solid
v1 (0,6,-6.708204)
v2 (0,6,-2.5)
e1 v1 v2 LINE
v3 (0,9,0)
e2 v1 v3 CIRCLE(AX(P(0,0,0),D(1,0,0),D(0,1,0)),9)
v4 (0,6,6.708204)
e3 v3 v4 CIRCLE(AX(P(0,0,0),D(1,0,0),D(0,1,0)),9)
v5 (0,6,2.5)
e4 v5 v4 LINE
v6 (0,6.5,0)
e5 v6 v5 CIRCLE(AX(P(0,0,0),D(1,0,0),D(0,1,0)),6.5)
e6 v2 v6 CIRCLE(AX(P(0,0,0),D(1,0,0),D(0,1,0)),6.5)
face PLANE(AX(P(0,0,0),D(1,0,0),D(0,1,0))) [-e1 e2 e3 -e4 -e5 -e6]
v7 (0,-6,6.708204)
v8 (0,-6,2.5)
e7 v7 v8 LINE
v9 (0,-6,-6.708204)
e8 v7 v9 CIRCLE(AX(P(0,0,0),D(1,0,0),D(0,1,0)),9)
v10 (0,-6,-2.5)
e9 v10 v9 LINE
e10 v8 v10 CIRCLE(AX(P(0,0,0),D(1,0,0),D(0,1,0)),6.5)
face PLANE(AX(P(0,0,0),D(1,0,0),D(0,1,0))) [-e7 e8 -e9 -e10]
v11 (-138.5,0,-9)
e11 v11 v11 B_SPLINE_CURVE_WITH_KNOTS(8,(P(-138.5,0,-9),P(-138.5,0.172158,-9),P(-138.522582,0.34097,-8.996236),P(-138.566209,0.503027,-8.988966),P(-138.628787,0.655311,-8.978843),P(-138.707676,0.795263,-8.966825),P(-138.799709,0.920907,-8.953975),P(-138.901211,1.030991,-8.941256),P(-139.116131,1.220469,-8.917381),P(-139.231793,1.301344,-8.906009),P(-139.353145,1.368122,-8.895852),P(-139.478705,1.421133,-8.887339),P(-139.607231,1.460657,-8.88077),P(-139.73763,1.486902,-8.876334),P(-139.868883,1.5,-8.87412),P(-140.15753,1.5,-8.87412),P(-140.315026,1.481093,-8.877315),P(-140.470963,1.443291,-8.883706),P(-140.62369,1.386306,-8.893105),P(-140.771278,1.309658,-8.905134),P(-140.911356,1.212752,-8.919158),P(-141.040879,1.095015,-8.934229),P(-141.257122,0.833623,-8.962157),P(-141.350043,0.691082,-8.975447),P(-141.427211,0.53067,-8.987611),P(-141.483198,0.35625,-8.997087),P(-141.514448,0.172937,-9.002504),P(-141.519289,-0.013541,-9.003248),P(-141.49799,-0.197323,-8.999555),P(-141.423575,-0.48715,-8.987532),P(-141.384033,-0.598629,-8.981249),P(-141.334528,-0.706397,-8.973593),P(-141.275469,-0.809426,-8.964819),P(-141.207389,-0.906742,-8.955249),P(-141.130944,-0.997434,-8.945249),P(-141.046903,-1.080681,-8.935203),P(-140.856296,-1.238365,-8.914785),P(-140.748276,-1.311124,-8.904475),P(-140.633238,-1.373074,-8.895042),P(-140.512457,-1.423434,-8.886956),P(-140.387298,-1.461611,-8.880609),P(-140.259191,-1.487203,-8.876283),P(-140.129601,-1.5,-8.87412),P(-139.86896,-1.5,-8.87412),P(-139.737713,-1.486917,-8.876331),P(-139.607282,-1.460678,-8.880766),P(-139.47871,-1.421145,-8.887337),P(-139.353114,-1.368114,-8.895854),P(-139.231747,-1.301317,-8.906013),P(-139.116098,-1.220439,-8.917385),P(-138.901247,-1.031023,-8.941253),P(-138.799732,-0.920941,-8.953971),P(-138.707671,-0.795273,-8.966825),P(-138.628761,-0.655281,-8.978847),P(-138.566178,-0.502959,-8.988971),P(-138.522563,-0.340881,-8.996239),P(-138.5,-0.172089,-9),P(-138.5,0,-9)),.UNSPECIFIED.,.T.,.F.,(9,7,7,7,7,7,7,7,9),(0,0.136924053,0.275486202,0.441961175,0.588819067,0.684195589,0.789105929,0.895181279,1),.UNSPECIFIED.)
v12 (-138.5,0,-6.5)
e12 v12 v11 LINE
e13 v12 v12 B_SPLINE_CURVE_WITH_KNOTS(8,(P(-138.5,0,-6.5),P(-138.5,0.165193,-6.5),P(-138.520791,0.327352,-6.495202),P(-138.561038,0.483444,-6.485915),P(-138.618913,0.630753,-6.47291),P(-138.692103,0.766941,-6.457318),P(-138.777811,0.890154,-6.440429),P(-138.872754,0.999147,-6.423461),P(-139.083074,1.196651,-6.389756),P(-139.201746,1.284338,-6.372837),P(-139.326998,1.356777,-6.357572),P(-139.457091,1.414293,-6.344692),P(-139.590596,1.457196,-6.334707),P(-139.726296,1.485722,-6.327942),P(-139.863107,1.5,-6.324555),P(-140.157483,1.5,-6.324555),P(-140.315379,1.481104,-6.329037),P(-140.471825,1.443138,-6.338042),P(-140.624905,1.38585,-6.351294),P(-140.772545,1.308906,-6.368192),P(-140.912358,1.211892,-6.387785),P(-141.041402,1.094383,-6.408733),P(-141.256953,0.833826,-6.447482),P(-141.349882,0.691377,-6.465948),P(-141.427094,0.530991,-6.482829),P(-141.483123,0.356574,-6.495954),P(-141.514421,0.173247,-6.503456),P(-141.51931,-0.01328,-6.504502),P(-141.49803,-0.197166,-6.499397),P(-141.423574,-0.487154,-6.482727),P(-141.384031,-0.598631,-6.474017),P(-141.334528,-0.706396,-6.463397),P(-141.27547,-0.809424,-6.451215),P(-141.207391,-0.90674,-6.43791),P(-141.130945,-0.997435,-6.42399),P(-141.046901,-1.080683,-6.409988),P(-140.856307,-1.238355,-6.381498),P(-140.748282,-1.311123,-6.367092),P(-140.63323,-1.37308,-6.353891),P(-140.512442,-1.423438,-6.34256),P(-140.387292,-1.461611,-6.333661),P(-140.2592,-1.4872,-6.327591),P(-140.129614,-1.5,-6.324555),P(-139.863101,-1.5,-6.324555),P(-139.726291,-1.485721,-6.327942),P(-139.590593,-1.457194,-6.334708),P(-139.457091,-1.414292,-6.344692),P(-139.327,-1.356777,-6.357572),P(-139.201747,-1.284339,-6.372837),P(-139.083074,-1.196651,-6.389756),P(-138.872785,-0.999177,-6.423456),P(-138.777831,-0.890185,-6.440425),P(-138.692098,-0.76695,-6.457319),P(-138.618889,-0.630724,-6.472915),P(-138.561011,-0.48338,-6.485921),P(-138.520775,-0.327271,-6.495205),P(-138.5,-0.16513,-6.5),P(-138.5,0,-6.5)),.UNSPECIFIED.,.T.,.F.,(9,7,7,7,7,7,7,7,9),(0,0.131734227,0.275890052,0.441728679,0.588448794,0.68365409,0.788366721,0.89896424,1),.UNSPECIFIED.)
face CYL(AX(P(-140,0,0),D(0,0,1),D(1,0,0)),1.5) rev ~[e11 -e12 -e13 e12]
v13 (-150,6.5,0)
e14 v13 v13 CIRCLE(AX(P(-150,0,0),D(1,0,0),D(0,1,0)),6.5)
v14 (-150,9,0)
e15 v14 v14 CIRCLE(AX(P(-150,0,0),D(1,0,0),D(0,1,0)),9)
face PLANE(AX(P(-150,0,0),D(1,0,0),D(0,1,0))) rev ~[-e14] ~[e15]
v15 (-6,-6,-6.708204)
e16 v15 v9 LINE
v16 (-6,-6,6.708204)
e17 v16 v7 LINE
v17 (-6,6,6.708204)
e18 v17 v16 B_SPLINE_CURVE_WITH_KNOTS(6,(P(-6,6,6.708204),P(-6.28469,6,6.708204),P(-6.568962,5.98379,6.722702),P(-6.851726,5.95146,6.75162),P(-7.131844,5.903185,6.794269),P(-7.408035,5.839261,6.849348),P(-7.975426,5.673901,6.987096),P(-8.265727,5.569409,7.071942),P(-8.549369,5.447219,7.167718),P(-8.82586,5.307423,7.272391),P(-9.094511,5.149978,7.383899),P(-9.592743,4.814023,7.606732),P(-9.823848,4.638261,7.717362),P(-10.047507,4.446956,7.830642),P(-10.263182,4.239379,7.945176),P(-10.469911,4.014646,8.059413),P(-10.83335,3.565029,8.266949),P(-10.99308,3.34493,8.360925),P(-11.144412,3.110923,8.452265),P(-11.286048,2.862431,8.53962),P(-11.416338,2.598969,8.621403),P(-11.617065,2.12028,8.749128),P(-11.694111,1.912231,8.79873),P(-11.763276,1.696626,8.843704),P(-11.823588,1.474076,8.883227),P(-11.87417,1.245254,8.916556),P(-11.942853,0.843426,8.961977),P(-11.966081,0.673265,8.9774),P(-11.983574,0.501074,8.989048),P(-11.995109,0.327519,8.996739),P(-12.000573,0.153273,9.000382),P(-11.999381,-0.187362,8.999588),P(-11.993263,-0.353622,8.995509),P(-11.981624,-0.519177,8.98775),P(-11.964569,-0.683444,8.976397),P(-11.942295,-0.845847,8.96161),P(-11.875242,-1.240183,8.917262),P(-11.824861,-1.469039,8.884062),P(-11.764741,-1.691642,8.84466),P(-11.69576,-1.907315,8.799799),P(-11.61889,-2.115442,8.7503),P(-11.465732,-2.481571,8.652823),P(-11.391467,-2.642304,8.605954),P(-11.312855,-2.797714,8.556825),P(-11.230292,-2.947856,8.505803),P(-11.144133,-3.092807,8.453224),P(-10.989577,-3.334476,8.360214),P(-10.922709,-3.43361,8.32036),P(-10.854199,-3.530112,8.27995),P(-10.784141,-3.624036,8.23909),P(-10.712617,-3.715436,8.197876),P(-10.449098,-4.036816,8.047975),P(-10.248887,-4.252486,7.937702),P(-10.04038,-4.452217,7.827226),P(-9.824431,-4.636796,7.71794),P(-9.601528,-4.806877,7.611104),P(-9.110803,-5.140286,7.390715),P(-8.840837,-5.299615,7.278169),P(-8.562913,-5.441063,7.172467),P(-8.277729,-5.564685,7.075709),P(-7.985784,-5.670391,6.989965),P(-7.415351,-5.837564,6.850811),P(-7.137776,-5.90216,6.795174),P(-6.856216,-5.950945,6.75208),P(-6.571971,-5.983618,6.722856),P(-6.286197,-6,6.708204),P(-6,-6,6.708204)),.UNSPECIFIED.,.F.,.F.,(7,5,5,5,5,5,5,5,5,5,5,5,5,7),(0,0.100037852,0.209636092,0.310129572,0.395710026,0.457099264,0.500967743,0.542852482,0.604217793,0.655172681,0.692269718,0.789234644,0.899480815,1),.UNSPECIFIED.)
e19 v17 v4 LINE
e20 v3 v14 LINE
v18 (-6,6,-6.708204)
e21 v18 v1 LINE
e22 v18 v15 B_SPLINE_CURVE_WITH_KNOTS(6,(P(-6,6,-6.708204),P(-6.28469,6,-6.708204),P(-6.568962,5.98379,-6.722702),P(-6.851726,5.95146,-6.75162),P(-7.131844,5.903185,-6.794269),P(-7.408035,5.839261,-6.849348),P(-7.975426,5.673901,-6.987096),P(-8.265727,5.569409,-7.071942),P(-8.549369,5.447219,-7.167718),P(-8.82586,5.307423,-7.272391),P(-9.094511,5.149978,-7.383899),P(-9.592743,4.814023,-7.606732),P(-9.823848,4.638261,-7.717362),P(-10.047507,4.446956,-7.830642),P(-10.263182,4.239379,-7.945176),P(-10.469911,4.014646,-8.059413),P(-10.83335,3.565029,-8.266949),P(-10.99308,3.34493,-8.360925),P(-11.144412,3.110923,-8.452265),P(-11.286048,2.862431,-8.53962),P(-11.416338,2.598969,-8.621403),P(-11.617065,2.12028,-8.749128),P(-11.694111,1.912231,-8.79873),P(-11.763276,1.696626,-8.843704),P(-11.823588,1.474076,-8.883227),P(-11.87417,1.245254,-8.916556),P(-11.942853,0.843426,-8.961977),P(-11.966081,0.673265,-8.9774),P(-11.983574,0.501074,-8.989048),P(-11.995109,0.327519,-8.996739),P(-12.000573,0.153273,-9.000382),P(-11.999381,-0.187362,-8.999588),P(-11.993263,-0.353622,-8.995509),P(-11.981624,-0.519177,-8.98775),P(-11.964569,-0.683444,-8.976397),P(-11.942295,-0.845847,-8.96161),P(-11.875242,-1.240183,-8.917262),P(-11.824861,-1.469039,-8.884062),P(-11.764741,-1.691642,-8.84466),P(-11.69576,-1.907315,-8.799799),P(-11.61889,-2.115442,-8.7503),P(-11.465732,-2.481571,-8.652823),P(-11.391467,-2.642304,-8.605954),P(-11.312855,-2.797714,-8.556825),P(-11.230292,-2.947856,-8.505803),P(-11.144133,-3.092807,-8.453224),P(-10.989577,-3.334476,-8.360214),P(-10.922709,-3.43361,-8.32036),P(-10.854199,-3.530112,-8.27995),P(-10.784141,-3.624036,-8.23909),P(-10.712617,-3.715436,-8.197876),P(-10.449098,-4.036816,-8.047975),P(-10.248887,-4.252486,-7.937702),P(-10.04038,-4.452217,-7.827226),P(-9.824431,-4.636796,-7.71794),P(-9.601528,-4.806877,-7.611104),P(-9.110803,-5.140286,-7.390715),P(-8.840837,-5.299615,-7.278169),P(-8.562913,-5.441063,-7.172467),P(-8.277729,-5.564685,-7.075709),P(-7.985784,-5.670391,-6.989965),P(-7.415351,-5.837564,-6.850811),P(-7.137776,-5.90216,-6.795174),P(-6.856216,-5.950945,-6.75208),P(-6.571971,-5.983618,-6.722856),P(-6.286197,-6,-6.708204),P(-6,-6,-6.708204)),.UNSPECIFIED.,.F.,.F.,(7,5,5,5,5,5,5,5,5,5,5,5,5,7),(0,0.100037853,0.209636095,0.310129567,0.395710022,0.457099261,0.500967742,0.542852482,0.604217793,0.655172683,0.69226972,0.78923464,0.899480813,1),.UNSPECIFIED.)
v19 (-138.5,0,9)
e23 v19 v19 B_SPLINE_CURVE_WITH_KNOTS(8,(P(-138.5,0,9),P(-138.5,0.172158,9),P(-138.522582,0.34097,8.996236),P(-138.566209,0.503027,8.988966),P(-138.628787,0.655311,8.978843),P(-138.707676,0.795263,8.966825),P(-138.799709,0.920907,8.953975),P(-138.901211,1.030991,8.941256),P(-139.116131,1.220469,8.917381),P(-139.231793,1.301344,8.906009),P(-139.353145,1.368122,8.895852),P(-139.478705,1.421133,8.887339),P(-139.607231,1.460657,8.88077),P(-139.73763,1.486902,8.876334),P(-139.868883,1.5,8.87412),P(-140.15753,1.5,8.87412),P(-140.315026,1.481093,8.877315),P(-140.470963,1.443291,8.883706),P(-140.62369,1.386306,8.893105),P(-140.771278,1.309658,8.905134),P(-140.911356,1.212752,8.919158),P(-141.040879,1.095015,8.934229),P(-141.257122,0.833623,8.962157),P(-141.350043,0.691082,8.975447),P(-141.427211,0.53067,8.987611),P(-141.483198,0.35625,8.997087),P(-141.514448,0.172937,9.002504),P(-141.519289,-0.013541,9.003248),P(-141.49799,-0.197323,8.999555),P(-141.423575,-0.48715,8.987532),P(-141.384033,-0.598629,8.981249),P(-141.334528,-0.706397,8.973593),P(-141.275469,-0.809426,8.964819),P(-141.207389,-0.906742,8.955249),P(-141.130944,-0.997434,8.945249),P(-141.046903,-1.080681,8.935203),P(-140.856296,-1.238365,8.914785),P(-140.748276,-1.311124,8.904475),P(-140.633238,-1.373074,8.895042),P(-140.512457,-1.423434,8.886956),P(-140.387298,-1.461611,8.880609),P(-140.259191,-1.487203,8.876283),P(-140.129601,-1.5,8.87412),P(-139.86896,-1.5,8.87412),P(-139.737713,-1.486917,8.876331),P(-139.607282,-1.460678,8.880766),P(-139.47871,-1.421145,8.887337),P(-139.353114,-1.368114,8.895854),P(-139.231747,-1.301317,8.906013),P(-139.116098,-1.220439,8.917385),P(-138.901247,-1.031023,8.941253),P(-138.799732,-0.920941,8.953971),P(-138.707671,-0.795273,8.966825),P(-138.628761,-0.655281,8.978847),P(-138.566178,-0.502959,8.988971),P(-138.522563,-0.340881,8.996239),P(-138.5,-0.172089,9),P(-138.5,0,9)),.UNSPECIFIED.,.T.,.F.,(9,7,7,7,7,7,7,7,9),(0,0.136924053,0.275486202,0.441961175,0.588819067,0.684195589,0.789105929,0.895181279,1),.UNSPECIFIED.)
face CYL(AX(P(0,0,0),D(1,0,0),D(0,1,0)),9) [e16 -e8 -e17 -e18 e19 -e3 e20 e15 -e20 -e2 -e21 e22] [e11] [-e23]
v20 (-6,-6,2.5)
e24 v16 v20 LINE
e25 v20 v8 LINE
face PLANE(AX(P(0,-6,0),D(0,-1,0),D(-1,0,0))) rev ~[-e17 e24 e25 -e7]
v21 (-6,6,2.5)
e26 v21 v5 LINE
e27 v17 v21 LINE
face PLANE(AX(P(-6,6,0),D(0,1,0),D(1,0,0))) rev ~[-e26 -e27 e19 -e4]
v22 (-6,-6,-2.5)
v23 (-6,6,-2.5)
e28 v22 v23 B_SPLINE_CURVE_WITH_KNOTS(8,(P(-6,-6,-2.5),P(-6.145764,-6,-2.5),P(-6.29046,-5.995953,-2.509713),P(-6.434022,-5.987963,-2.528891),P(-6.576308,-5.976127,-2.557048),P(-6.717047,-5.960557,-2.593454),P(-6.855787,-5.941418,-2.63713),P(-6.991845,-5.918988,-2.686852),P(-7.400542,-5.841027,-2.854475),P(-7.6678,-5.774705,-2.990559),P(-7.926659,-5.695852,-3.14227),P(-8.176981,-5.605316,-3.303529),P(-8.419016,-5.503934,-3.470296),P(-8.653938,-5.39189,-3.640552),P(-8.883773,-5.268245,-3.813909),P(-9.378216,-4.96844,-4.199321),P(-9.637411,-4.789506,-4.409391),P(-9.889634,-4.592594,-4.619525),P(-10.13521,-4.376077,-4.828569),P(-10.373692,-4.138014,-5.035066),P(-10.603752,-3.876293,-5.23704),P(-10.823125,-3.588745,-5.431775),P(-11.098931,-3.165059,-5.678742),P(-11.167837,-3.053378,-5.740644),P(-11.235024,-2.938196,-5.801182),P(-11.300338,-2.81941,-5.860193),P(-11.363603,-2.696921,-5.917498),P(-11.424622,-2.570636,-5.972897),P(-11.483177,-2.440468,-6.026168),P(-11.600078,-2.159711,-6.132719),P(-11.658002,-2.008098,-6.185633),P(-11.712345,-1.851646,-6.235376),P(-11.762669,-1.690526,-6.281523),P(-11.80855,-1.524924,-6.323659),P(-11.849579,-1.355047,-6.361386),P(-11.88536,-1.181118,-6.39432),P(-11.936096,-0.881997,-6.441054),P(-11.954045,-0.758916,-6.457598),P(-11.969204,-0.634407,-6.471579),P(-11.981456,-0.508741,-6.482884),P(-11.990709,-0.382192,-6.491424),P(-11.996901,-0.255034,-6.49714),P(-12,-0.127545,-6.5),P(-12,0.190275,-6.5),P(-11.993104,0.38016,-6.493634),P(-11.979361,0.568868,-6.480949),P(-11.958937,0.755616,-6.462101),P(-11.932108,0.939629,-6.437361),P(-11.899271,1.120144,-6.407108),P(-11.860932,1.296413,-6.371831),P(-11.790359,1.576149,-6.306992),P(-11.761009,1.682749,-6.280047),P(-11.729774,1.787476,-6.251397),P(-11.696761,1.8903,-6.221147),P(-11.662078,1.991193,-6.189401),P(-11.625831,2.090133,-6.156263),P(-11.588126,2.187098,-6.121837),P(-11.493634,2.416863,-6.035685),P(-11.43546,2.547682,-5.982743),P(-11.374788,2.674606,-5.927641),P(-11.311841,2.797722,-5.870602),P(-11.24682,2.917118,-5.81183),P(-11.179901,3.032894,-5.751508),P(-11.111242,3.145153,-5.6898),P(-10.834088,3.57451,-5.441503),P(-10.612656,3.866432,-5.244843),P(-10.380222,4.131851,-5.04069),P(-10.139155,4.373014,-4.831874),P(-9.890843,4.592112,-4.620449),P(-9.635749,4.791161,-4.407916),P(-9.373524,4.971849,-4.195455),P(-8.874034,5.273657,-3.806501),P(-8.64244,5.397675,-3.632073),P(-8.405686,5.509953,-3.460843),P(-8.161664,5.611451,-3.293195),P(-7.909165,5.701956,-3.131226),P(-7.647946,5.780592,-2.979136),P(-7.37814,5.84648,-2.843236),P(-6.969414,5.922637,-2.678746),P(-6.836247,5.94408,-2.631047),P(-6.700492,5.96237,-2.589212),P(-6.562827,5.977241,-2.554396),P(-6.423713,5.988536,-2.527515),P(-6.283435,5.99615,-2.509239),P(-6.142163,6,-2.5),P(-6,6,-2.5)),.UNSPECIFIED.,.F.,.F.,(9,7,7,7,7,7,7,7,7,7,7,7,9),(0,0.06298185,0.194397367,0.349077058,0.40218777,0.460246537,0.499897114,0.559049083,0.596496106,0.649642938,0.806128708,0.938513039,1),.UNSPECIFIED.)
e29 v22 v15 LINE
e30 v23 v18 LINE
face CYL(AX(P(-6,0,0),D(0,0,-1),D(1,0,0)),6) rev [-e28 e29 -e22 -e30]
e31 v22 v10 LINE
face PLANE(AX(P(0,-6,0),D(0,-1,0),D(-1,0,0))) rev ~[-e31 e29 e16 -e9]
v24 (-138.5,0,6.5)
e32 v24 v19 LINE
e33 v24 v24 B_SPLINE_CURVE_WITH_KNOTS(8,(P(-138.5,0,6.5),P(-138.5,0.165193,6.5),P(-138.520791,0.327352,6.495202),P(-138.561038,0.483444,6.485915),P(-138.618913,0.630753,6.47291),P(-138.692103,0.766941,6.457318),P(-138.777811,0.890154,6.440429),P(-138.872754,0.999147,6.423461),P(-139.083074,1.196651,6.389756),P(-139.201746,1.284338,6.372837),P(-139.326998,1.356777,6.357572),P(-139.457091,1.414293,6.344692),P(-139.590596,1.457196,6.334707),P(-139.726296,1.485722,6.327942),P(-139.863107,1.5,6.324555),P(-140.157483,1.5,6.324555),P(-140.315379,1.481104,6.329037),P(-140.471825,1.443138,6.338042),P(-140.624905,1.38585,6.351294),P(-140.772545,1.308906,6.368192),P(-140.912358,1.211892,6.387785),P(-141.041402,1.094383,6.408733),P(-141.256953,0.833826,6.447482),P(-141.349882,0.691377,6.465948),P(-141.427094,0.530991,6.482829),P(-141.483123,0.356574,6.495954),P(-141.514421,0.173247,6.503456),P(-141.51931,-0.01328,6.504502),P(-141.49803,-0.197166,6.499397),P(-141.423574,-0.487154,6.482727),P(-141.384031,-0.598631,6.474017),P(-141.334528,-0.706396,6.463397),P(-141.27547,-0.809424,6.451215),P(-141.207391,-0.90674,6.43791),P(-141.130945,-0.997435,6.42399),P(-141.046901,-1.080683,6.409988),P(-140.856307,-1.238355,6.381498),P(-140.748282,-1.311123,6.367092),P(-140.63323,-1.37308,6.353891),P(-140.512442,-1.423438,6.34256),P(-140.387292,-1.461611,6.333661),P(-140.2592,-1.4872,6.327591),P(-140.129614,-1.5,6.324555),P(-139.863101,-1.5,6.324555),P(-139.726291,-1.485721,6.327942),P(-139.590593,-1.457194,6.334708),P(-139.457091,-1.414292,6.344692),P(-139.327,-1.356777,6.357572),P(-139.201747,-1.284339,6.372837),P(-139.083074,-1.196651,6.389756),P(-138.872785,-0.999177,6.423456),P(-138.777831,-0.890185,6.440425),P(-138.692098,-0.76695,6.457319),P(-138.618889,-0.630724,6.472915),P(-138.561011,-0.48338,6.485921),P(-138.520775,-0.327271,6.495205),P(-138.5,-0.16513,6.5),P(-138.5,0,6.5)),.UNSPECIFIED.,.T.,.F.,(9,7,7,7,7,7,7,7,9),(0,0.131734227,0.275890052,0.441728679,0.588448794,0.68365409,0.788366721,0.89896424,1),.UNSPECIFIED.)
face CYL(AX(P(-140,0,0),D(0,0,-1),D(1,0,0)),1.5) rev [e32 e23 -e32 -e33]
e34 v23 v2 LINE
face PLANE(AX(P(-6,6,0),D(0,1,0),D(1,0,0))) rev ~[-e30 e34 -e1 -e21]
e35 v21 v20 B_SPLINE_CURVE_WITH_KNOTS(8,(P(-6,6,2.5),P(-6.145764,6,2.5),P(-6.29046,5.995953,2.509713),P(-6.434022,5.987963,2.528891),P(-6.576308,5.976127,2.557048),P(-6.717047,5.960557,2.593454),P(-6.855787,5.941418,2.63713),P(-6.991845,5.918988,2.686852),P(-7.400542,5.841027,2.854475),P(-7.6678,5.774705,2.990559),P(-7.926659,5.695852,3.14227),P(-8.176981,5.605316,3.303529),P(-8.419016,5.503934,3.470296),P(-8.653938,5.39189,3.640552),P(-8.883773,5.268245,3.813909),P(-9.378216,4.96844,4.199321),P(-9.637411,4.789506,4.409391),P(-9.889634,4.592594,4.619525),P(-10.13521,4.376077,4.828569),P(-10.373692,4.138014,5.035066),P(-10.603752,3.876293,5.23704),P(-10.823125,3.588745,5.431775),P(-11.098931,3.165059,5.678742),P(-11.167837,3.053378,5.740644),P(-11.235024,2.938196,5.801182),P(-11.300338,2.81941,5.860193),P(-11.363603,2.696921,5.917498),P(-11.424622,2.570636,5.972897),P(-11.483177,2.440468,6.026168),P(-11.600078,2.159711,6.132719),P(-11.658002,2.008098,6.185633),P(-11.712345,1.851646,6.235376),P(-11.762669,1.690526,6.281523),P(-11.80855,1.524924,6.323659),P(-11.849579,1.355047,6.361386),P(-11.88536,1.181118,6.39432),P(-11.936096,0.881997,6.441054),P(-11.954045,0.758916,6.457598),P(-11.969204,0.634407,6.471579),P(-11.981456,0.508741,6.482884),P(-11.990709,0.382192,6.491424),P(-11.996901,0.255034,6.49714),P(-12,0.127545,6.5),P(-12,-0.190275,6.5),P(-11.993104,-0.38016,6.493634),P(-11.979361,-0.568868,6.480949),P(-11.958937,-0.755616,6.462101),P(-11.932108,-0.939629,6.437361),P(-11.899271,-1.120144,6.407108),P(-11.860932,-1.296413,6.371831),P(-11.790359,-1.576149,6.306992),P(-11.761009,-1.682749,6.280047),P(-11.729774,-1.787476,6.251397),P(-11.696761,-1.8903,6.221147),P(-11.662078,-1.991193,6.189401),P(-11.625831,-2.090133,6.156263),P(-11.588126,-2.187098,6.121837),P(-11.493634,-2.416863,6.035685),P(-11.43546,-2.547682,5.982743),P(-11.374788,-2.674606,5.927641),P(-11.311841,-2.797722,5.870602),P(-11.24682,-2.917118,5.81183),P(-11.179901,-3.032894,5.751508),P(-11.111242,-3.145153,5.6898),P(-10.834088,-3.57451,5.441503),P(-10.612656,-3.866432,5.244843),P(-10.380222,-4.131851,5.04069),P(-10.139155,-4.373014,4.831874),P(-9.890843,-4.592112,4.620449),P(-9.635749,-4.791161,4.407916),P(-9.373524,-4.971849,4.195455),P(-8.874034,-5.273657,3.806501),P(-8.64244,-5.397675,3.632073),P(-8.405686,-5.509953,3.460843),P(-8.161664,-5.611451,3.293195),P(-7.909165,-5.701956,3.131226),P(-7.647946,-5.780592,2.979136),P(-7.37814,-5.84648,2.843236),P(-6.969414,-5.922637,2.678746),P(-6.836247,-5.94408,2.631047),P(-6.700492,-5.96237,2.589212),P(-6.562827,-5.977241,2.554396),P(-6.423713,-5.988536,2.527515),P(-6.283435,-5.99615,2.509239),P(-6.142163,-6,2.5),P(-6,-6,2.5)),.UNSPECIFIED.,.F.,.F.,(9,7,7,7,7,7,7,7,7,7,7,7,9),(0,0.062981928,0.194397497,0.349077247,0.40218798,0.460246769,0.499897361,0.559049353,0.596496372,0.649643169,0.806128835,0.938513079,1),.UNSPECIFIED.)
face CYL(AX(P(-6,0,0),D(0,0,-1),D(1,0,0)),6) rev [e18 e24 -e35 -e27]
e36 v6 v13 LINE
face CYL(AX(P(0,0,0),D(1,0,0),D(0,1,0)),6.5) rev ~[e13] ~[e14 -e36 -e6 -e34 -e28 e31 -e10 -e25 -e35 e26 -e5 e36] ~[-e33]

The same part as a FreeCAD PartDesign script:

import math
import FreeCAD as App
import Part
import Sketcher
from FreeCAD import Vector


def add_polygon(sketch, points):
    """Adds a closed chain of lines whose ends are joined by coincident constraints."""
    first, n = sketch.GeometryCount, len(points)
    for a, b in zip(points, points[1:] + points[:1]):
        sketch.addGeometry(Part.LineSegment(App.Vector(*a, 0), App.Vector(*b, 0)), False)
    for i in range(n):
        sketch.addConstraint(Sketcher.Constraint("Coincident", first + i, 2, first + (i + 1) % n, 1))

doc = App.newDocument("Part")
body = doc.addObject("PartDesign::Body", "Body")

# Sketch on YZ plane
sketch1 = body.newObject("Sketcher::SketchObject", "Sketch")
sketch1.AttachmentSupport = (doc.getObject("YZ_Plane"), [""])
sketch1.MapMode = "FlatFace"
sketch1.addGeometry([
    Part.Circle(Vector(0, 0, 0), Vector(0, 0, 1), 9),
    Part.Circle(Vector(0, 0, 0), Vector(0, 0, 1), 6),
], False)
sketch1.addConstraint([
    Sketcher.Constraint("Coincident", 0, 3, -1, 1),
    Sketcher.Constraint("Coincident", 1, 3, -1, 1),
    Sketcher.Constraint("Diameter", 0, 18.0),
    Sketcher.Constraint("Diameter", 1, 13.0),
])
pad1 = body.newObject("PartDesign::Pad", "Pad")
pad1.Profile = sketch1
pad1.Length = 150
pad1.Reversed = True

# Sketch on XY plane
sketch2 = body.newObject("Sketcher::SketchObject", "Sketch001")
sketch2.AttachmentSupport = (doc.getObject("XY_Plane"), [""])
sketch2.MapMode = "FlatFace"
add_polygon(sketch2, [(0, -6), (0, 6), (-6, 6), (-6, -6)])  # lines 0-3
sketch2.addConstraint([
    Sketcher.Constraint("Vertical", 0),
    Sketcher.Constraint("Horizontal", 1),
    Sketcher.Constraint("Vertical", 2),
    Sketcher.Constraint("Horizontal", 3),
    Sketcher.Constraint("Symmetric", 0, 2, 3, 2, -1, 1),
    Sketcher.Constraint("DistanceX", 1, 2, 1, 1, 6.0),
    Sketcher.Constraint("DistanceY", -1, 1, 0, 2, 6.0),
])
pocket1 = body.newObject("PartDesign::Pocket", "Pocket")
pocket1.Profile = sketch2
pocket1.Length = 150
pocket1.Midplane = True

# Sketch on XY plane
sketch3 = body.newObject("Sketcher::SketchObject", "Sketch002")
sketch3.AttachmentSupport = (doc.getObject("XY_Plane"), [""])
sketch3.MapMode = "FlatFace"
sketch3.addGeometry([
    Part.ArcOfCircle(Part.Circle(Vector(-6, 0, 0), Vector(0, 0, 1), 6), math.radians(90), math.radians(270)),
    Part.LineSegment(Vector(-6, -6, 0), Vector(-6, 6, 0)),
], False)
sketch3.addConstraint([
    Sketcher.Constraint("Coincident", 0, 1, 1, 2),
    Sketcher.Constraint("Coincident", 1, 1, 0, 2),
    Sketcher.Constraint("Vertical", 1),
    Sketcher.Constraint("PointOnObject", 0, 3, -1),
    Sketcher.Constraint("Radius", 0, 6.0),
    Sketcher.Constraint("DistanceX", 0, 3, -1, 1, 6.0),
    Sketcher.Constraint("DistanceX", 0, 1, -1, 1, 6.0),
])
pocket2 = body.newObject("PartDesign::Pocket", "Pocket001")
pocket2.Profile = sketch3
pocket2.Length = 150
pocket2.Midplane = True

# Sketch on XY plane
sketch4 = body.newObject("Sketcher::SketchObject", "Sketch003")
sketch4.AttachmentSupport = (doc.getObject("XY_Plane"), [""])
sketch4.MapMode = "FlatFace"
sketch4.addGeometry(Part.Circle(Vector(-140, 0, 0), Vector(0, 0, 1), 1.5), False)
sketch4.addConstraint([
    Sketcher.Constraint("PointOnObject", 0, 3, -1),
    Sketcher.Constraint("Diameter", 0, 3.0),
    Sketcher.Constraint("DistanceX", 0, 3, -1, 1, 140.0),
])
pocket3 = body.newObject("PartDesign::Pocket", "Pocket002")
pocket3.Profile = sketch4
pocket3.Length = 150
pocket3.Midplane = True

doc.recompute()
